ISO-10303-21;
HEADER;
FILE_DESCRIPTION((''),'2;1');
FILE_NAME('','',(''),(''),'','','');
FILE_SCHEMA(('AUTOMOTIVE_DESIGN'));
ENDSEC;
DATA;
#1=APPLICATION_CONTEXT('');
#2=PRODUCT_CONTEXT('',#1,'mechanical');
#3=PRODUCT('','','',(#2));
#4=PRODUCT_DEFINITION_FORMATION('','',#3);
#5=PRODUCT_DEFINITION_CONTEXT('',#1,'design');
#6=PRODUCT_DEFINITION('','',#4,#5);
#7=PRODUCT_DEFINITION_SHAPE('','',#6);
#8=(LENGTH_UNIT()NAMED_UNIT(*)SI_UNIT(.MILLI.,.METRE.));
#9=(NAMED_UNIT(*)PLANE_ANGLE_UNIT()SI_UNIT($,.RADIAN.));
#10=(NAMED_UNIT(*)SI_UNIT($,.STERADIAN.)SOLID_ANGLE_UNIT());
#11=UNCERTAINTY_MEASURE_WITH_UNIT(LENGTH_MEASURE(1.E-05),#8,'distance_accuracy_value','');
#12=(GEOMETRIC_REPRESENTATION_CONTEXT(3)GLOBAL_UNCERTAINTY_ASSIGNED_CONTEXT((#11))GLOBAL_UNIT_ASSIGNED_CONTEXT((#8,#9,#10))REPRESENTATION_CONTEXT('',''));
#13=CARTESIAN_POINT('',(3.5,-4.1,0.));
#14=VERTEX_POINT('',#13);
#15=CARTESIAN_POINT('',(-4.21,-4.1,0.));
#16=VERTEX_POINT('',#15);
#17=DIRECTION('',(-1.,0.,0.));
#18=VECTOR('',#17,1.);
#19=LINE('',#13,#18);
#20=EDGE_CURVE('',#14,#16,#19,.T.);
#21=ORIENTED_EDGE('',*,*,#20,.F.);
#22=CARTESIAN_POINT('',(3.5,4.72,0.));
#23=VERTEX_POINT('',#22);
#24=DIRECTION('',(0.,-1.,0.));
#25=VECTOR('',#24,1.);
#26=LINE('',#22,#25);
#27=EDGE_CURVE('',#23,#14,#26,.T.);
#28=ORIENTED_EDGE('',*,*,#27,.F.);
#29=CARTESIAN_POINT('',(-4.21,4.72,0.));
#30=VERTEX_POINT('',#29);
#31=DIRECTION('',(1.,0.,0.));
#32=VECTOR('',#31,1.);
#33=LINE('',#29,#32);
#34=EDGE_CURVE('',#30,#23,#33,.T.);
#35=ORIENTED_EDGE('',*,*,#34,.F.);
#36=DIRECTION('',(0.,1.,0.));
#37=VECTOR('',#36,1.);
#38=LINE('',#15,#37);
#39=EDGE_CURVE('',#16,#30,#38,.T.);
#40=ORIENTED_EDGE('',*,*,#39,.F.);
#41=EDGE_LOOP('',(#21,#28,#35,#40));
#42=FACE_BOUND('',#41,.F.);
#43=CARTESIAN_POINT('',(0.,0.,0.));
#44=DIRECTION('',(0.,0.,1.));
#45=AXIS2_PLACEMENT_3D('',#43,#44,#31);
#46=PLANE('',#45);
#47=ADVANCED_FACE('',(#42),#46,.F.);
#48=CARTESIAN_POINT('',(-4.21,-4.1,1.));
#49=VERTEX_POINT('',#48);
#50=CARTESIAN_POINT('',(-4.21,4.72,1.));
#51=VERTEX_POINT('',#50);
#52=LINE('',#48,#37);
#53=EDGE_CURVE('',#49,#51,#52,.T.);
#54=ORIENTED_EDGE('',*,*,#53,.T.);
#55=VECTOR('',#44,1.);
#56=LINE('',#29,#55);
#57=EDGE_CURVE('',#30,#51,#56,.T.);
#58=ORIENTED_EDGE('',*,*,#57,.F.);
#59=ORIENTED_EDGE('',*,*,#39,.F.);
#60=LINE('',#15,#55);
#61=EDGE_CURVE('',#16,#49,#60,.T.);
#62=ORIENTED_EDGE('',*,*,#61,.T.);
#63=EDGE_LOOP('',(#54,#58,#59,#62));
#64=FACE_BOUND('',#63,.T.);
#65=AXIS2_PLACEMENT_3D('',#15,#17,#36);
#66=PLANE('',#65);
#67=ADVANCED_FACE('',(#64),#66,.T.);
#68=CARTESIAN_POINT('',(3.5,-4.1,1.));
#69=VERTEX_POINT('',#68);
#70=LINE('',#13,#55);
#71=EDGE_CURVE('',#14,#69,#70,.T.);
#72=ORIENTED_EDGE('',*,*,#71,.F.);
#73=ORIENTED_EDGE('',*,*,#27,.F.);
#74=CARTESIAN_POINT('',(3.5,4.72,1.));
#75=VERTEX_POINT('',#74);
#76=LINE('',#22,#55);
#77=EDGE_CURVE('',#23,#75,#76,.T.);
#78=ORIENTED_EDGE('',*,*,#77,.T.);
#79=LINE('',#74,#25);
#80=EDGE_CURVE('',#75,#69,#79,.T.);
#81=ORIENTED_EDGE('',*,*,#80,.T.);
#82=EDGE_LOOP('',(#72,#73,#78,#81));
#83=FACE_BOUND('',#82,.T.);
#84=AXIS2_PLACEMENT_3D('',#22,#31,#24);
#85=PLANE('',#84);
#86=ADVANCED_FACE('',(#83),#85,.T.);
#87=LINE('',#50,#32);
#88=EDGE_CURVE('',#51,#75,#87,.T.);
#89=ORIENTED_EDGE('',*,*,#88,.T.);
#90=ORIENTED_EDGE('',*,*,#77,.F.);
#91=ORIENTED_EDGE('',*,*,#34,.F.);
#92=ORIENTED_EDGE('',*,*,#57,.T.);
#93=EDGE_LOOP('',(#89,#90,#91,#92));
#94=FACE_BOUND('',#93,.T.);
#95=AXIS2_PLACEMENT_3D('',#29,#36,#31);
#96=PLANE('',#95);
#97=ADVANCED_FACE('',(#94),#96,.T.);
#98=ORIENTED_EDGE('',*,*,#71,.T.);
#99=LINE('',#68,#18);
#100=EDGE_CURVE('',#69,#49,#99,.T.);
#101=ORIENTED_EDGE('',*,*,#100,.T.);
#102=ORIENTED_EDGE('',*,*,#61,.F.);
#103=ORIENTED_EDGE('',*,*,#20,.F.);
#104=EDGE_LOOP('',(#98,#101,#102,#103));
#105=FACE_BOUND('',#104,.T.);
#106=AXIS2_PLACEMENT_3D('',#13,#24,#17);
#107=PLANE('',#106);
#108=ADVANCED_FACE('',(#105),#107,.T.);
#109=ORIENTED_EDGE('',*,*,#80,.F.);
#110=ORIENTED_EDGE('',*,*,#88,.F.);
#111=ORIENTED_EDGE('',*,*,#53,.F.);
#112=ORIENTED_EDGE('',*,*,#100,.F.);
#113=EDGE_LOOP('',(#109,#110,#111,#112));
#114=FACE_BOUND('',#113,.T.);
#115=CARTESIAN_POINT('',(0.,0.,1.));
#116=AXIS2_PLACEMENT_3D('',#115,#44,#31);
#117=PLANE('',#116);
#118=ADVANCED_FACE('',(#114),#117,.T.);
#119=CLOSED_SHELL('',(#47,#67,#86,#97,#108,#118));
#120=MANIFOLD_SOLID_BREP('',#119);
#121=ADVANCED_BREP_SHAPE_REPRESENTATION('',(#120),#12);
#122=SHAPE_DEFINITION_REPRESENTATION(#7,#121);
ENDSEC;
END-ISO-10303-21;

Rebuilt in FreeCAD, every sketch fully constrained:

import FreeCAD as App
import Part
import Sketcher
from FreeCAD import Vector

doc = App.newDocument("Part")
body = doc.addObject("PartDesign::Body", "Body")

sketch1 = doc.addObject("Sketcher::SketchObject", "Sketch")
body.addObject(sketch1)
sketch1.AttachmentSupport = (doc.XY_Plane, [""])
sketch1.MapMode = "FlatFace"
sketch1.addGeometry([
    Part.LineSegment(Vector(-4, 5, 0), Vector(-4, -4, 0)),
    Part.LineSegment(Vector(-4, -4, 0), Vector(4, -4, 0)),
    Part.LineSegment(Vector(4, -4, 0), Vector(4, 5, 0)),
    Part.LineSegment(Vector(4, 5, 0), Vector(-4, 5, 0)),
], False)
sketch1.addConstraint([
    Sketcher.Constraint("Coincident", 0, 2, 1, 1),
    Sketcher.Constraint("Coincident", 1, 2, 2, 1),
    Sketcher.Constraint("Coincident", 2, 2, 3, 1),
    Sketcher.Constraint("Coincident", 3, 2, 0, 1),
    Sketcher.Constraint("Vertical", 0),
    Sketcher.Constraint("Horizontal", 1),
    Sketcher.Constraint("Vertical", 2),
    Sketcher.Constraint("Horizontal", 3),
    Sketcher.Constraint("DistanceX", 1, 1, 1, 2, 7.71),
    Sketcher.Constraint("DistanceY", 0, 2, 0, 1, 8.82),
    Sketcher.Constraint("DistanceY", 0, 2, -1, 1, 4.1),
    Sketcher.Constraint("DistanceX", -1, 1, 1, 2, 3.5),
])
pad1 = doc.addObject("PartDesign::Pad", "Pad")
body.addObject(pad1)
pad1.Profile = sketch1
pad1.Length = 1

doc.recompute()
